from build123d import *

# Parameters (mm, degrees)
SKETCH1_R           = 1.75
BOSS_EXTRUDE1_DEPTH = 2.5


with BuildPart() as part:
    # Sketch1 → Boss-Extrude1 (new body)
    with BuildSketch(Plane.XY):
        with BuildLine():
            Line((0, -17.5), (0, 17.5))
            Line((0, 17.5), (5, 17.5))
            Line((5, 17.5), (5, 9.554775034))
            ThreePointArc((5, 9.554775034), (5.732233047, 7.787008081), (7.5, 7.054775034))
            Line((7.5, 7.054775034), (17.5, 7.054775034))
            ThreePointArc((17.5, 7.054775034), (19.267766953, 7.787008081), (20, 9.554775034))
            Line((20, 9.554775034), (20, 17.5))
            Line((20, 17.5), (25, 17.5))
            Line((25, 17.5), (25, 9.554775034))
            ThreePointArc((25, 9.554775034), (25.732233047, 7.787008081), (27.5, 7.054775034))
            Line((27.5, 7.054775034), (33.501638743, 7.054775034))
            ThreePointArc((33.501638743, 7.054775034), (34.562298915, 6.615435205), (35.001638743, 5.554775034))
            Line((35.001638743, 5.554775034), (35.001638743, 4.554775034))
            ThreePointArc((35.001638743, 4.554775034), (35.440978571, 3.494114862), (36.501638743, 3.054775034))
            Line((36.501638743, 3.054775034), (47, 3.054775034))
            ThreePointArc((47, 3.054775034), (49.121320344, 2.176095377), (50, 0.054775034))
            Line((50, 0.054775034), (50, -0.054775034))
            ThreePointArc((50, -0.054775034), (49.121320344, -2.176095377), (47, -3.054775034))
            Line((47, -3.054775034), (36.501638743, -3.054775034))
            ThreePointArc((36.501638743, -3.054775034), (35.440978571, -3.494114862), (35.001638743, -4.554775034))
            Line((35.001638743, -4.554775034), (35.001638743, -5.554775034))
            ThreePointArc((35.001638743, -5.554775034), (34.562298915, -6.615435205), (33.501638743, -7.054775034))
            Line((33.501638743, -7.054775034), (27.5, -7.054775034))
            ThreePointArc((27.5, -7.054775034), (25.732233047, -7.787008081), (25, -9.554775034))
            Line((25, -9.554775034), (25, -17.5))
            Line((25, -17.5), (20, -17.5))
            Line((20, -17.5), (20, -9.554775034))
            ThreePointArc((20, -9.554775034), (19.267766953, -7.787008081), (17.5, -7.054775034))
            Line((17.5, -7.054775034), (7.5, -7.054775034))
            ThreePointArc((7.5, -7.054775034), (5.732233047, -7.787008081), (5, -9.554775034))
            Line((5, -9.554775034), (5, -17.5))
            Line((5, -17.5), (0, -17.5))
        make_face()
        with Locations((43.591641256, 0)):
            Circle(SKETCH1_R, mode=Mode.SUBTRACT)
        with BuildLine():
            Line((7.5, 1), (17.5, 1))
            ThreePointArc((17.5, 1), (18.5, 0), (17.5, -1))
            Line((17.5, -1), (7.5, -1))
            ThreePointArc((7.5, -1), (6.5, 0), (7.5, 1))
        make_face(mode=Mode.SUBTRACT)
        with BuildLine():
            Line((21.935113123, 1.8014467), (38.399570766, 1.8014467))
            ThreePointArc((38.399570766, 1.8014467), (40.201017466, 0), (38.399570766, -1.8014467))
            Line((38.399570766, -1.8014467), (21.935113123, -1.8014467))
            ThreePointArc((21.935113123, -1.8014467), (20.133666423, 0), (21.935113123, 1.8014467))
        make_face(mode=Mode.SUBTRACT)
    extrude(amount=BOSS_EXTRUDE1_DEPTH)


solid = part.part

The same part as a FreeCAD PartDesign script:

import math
import FreeCAD as App
import Part
import Sketcher

V = App.Vector
Q = App.Units.Quantity

doc = App.newDocument("Part")
body = doc.addObject("PartDesign::Body", "Body")

sketch1 = body.newObject("Sketcher::SketchObject", "Sketch")
sketch1.AttachmentSupport = (doc.getObject("XY_Plane"), [""])
sketch1.MapMode = "FlatFace"
sketch1.addGeometry(Part.LineSegment(V(0, 17.5, 0), V(0, -17.5, 0)), False)
sketch1.addGeometry(Part.LineSegment(V(0, -17.5, 0), V(5, -17.5, 0)), False)
sketch1.addGeometry(Part.LineSegment(V(5, -17.5, 0), V(5, -9.55, 0)), False)
sketch1.addGeometry(Part.ArcOfCircle(Part.Circle(V(7.5, -9.55, 0), V(0, 0, 1), 2.5), math.radians(90), math.radians(180)), False)
sketch1.addGeometry(Part.LineSegment(V(7.5, -7.05, 0), V(17.5, -7.05, 0)), False)
sketch1.addGeometry(Part.ArcOfCircle(Part.Circle(V(17.5, -9.55, 0), V(0, 0, 1), 2.5), math.radians(0), math.radians(90)), False)
sketch1.addGeometry(Part.LineSegment(V(20, -9.55, 0), V(20, -17.5, 0)), False)
sketch1.addGeometry(Part.LineSegment(V(20, -17.5, 0), V(25, -17.5, 0)), False)
sketch1.addGeometry(Part.LineSegment(V(25, -17.5, 0), V(25, -9.55, 0)), False)
sketch1.addGeometry(Part.ArcOfCircle(Part.Circle(V(27.5, -9.55, 0), V(0, 0, 1), 2.5), math.radians(90), math.radians(180)), False)
sketch1.addGeometry(Part.LineSegment(V(27.5, -7.05, 0), V(33.5, -7.05, 0)), False)
sketch1.addGeometry(Part.ArcOfCircle(Part.Circle(V(33.5, -5.55, 0), V(0, 0, 1), 1.5), math.radians(-90), math.radians(0)), False)
sketch1.addGeometry(Part.LineSegment(V(35, -5.55, 0), V(35, -4.55, 0)), False)
sketch1.addGeometry(Part.ArcOfCircle(Part.Circle(V(36.5, -4.55, 0), V(0, 0, 1), 1.5), math.radians(90), math.radians(180)), False)
sketch1.addGeometry(Part.LineSegment(V(36.5, -3.05, 0), V(47, -3.05, 0)), False)
sketch1.addGeometry(Part.ArcOfCircle(Part.Circle(V(47, -0.05, 0), V(0, 0, 1), 3), math.radians(-90), math.radians(0)), False)
sketch1.addGeometry(Part.LineSegment(V(50, -0.05, 0), V(50, 0.05, 0)), False)
sketch1.addGeometry(Part.ArcOfCircle(Part.Circle(V(47, 0.05, 0), V(0, 0, 1), 3), math.radians(0), math.radians(90)), False)
sketch1.addGeometry(Part.LineSegment(V(47, 3.05, 0), V(36.5, 3.05, 0)), False)
sketch1.addGeometry(Part.ArcOfCircle(Part.Circle(V(36.5, 4.55, 0), V(0, 0, 1), 1.5), math.radians(180), math.radians(270)), False)
sketch1.addGeometry(Part.LineSegment(V(35, 4.55, 0), V(35, 5.55, 0)), False)
sketch1.addGeometry(Part.ArcOfCircle(Part.Circle(V(33.5, 5.55, 0), V(0, 0, 1), 1.5), math.radians(0), math.radians(90)), False)
sketch1.addGeometry(Part.LineSegment(V(33.5, 7.05, 0), V(27.5, 7.05, 0)), False)
sketch1.addGeometry(Part.ArcOfCircle(Part.Circle(V(27.5, 9.55, 0), V(0, 0, 1), 2.5), math.radians(180), math.radians(270)), False)
sketch1.addGeometry(Part.LineSegment(V(25, 9.55, 0), V(25, 17.5, 0)), False)
sketch1.addGeometry(Part.LineSegment(V(25, 17.5, 0), V(20, 17.5, 0)), False)
sketch1.addGeometry(Part.LineSegment(V(20, 17.5, 0), V(20, 9.55, 0)), False)
sketch1.addGeometry(Part.ArcOfCircle(Part.Circle(V(17.5, 9.55, 0), V(0, 0, 1), 2.5), math.radians(-90), math.radians(0)), False)
sketch1.addGeometry(Part.LineSegment(V(17.5, 7.05, 0), V(7.5, 7.05, 0)), False)
sketch1.addGeometry(Part.ArcOfCircle(Part.Circle(V(7.5, 9.55, 0), V(0, 0, 1), 2.5), math.radians(180), math.radians(270)), False)
sketch1.addGeometry(Part.LineSegment(V(5, 9.55, 0), V(5, 17.5, 0)), False)
sketch1.addGeometry(Part.LineSegment(V(5, 17.5, 0), V(0, 17.5, 0)), False)
sketch1.addGeometry(Part.Circle(V(43.59, 0, 0), V(0, 0, 1), 1.75), False)
sketch1.addGeometry(Part.LineSegment(V(21.94, 1.8, 0), V(38.4, 1.8, 0)), False)
sketch1.addGeometry(Part.ArcOfCircle(Part.Circle(V(38.4, 0, 0), V(0, 0, 1), 1.8), math.radians(-90), math.radians(90)), False)
sketch1.addGeometry(Part.LineSegment(V(38.4, -1.8, 0), V(21.94, -1.8, 0)), False)
sketch1.addGeometry(Part.ArcOfCircle(Part.Circle(V(21.94, 0, 0), V(0, 0, 1), 1.8), math.radians(90), math.radians(270)), False)
sketch1.addGeometry(Part.LineSegment(V(7.5, 1, 0), V(17.5, 1, 0)), False)
sketch1.addGeometry(Part.ArcOfCircle(Part.Circle(V(17.5, 0, 0), V(0, 0, 1), 1), math.radians(-90), math.radians(90)), False)
sketch1.addGeometry(Part.LineSegment(V(17.5, -1, 0), V(7.5, -1, 0)), False)
sketch1.addGeometry(Part.ArcOfCircle(Part.Circle(V(7.5, 0, 0), V(0, 0, 1), 1), math.radians(90), math.radians(270)), False)
sketch1.addConstraint(Sketcher.Constraint("Coincident", 0, 2, 1, 1))
sketch1.addConstraint(Sketcher.Constraint("Coincident", 1, 2, 2, 1))
sketch1.addConstraint(Sketcher.Constraint("Tangent", 2, 2, 3, 2))
sketch1.addConstraint(Sketcher.Constraint("Tangent", 3, 1, 4, 1))
sketch1.addConstraint(Sketcher.Constraint("Tangent", 4, 2, 5, 2))
sketch1.addConstraint(Sketcher.Constraint("Tangent", 5, 1, 6, 1))
sketch1.addConstraint(Sketcher.Constraint("Coincident", 6, 2, 7, 1))
sketch1.addConstraint(Sketcher.Constraint("Coincident", 7, 2, 8, 1))
sketch1.addConstraint(Sketcher.Constraint("Tangent", 8, 2, 9, 2))
sketch1.addConstraint(Sketcher.Constraint("Tangent", 9, 1, 10, 1))
sketch1.addConstraint(Sketcher.Constraint("Tangent", 10, 2, 11, 1))
sketch1.addConstraint(Sketcher.Constraint("Tangent", 11, 2, 12, 1))
sketch1.addConstraint(Sketcher.Constraint("Tangent", 12, 2, 13, 2))
sketch1.addConstraint(Sketcher.Constraint("Tangent", 13, 1, 14, 1))
sketch1.addConstraint(Sketcher.Constraint("Tangent", 14, 2, 15, 1))
sketch1.addConstraint(Sketcher.Constraint("Tangent", 15, 2, 16, 1))
sketch1.addConstraint(Sketcher.Constraint("Tangent", 16, 2, 17, 1))
sketch1.addConstraint(Sketcher.Constraint("Tangent", 17, 2, 18, 1))
sketch1.addConstraint(Sketcher.Constraint("Tangent", 18, 2, 19, 2))
sketch1.addConstraint(Sketcher.Constraint("Tangent", 19, 1, 20, 1))
sketch1.addConstraint(Sketcher.Constraint("Tangent", 20, 2, 21, 1))
sketch1.addConstraint(Sketcher.Constraint("Tangent", 21, 2, 22, 1))
sketch1.addConstraint(Sketcher.Constraint("Tangent", 22, 2, 23, 2))
sketch1.addConstraint(Sketcher.Constraint("Tangent", 23, 1, 24, 1))
sketch1.addConstraint(Sketcher.Constraint("Coincident", 24, 2, 25, 1))
sketch1.addConstraint(Sketcher.Constraint("Coincident", 25, 2, 26, 1))
sketch1.addConstraint(Sketcher.Constraint("Tangent", 26, 2, 27, 2))
sketch1.addConstraint(Sketcher.Constraint("Tangent", 27, 1, 28, 1))
sketch1.addConstraint(Sketcher.Constraint("Tangent", 28, 2, 29, 2))
sketch1.addConstraint(Sketcher.Constraint("Tangent", 29, 1, 30, 1))
sketch1.addConstraint(Sketcher.Constraint("Coincident", 30, 2, 31, 1))
sketch1.addConstraint(Sketcher.Constraint("Coincident", 31, 2, 0, 1))
sketch1.addConstraint(Sketcher.Constraint("Tangent", 33, 2, 34, 2))
sketch1.addConstraint(Sketcher.Constraint("Tangent", 34, 1, 35, 1))
sketch1.addConstraint(Sketcher.Constraint("Tangent", 35, 2, 36, 2))
sketch1.addConstraint(Sketcher.Constraint("Tangent", 36, 1, 33, 1))
sketch1.addConstraint(Sketcher.Constraint("Tangent", 37, 2, 38, 2))
sketch1.addConstraint(Sketcher.Constraint("Tangent", 38, 1, 39, 1))
sketch1.addConstraint(Sketcher.Constraint("Tangent", 39, 2, 40, 2))
sketch1.addConstraint(Sketcher.Constraint("Tangent", 40, 1, 37, 1))
sketch1.addConstraint(Sketcher.Constraint("Vertical", 0))
sketch1.addConstraint(Sketcher.Constraint("Horizontal", 1))
sketch1.addConstraint(Sketcher.Constraint("Vertical", 2))
sketch1.addConstraint(Sketcher.Constraint("Horizontal", 4))
sketch1.addConstraint(Sketcher.Constraint("Vertical", 6))
sketch1.addConstraint(Sketcher.Constraint("Horizontal", 7))
sketch1.addConstraint(Sketcher.Constraint("Vertical", 8))
sketch1.addConstraint(Sketcher.Constraint("Horizontal", 10))
sketch1.addConstraint(Sketcher.Constraint("Vertical", 12))
sketch1.addConstraint(Sketcher.Constraint("Horizontal", 14))
sketch1.addConstraint(Sketcher.Constraint("Vertical", 16))
sketch1.addConstraint(Sketcher.Constraint("Horizontal", 18))
sketch1.addConstraint(Sketcher.Constraint("Vertical", 20))
sketch1.addConstraint(Sketcher.Constraint("Horizontal", 22))
sketch1.addConstraint(Sketcher.Constraint("Vertical", 24))
sketch1.addConstraint(Sketcher.Constraint("Horizontal", 25))
sketch1.addConstraint(Sketcher.Constraint("Vertical", 26))
sketch1.addConstraint(Sketcher.Constraint("Horizontal", 28))
sketch1.addConstraint(Sketcher.Constraint("Vertical", 30))
sketch1.addConstraint(Sketcher.Constraint("Horizontal", 31))
sketch1.addConstraint(Sketcher.Constraint("Horizontal", 33))
sketch1.addConstraint(Sketcher.Constraint("Horizontal", 35))
sketch1.addConstraint(Sketcher.Constraint("Horizontal", 37))
sketch1.addConstraint(Sketcher.Constraint("Horizontal", 39))
sketch1.addConstraint(Sketcher.Constraint("Equal", 3, 5))
sketch1.addConstraint(Sketcher.Constraint("Equal", 5, 9))
sketch1.addConstraint(Sketcher.Constraint("Equal", 11, 13))
sketch1.addConstraint(Sketcher.Constraint("Equal", 15, 17))
sketch1.addConstraint(Sketcher.Constraint("Equal", 13, 19))
sketch1.addConstraint(Sketcher.Constraint("Equal", 19, 21))
sketch1.addConstraint(Sketcher.Constraint("Equal", 9, 23))
sketch1.addConstraint(Sketcher.Constraint("Equal", 23, 27))
sketch1.addConstraint(Sketcher.Constraint("Equal", 27, 29))
sketch1.addConstraint(Sketcher.Constraint("Symmetric", 0, 2, 31, 2, -1, 1))
sketch1.addConstraint(Sketcher.Constraint("Symmetric", 13, 3, 19, 3, -1))
sketch1.addConstraint(Sketcher.Constraint("Symmetric", 9, 3, 23, 3, -1))
sketch1.addConstraint(Sketcher.Constraint("Symmetric", 5, 3, 27, 3, -1))
sketch1.addConstraint(Sketcher.Constraint("PointOnObject", 32, 3, -1))
sketch1.addConstraint(Sketcher.Constraint("PointOnObject", 34, 3, -1))
sketch1.addConstraint(Sketcher.Constraint("PointOnObject", 38, 3, -1))
sketch1.addConstraint(Sketcher.Constraint("Horizontal", 5, 3, 9, 3))
sketch1.addConstraint(Sketcher.Constraint("Horizontal", 1, 2, 6, 2))
sketch1.addConstraint(Sketcher.Constraint("Horizontal", 25, 2, 30, 2))
sketch1.addConstraint(Sketcher.Constraint("Vertical", 3, 3, 29, 3))
sketch1.addConstraint(Sketcher.Constraint("Vertical", 27, 3, 38, 3))
sketch1.addConstraint(Sketcher.Constraint("Vertical", 29, 3, 40, 3))
sketch1.addConstraint(Sketcher.Constraint("Equal", 1, 7))
sketch1.addConstraint(Sketcher.Constraint("Radius", 15, Q("3 mm")))
sketch1.addConstraint(Sketcher.Constraint("Radius", 38, Q("1 mm")))
sketch1.addConstraint(Sketcher.Constraint("Diameter", 32, Q("3.5 mm")))
sketch1.addConstraint(Sketcher.Constraint("Radius", 3, Q("2.5 mm")))
sketch1.addConstraint(Sketcher.Constraint("Radius", 11, Q("1.5 mm")))
sketch1.addConstraint(Sketcher.Constraint("DistanceX", 1, 1, 1, 2, Q("5 mm")))
sketch1.addConstraint(Sketcher.Constraint("DistanceX", 4, 1, 4, 2, Q("10 mm")))
sketch1.addConstraint(Sketcher.Constraint("DistanceY", 0, 2, 0, 1, Q("35 mm")))
sketch1.addConstraint(Sketcher.Constraint("DistanceY", 12, 1, 12, 2, Q("1 mm")))
sketch1.addConstraint(Sketcher.Constraint("DistanceX", -1, 1, 15, 3, Q("47 mm")))
sketch1.addConstraint(Sketcher.Constraint("Radius", 34, Q("1.801447 mm")))
sketch1.addConstraint(Sketcher.Constraint("DistanceX", 10, 1, 10, 2, Q("6.001639 mm")))
sketch1.addConstraint(Sketcher.Constraint("DistanceY", 16, 1, 16, 2, Q("0.10955 mm")))
sketch1.addConstraint(Sketcher.Constraint("DistanceX", 33, 1, 33, 2, Q("16.464458 mm")))
sketch1.addConstraint(Sketcher.Constraint("DistanceX", -1, 1, 32, 3, Q("43.591641 mm")))
sketch1.addConstraint(Sketcher.Constraint("DistanceX", -1, 1, 34, 3, Q("38.399571 mm")))
pad1 = body.newObject("PartDesign::Pad", "Pad")
pad1.Profile = sketch1
pad1.Length = 2.5

doc.recompute()
